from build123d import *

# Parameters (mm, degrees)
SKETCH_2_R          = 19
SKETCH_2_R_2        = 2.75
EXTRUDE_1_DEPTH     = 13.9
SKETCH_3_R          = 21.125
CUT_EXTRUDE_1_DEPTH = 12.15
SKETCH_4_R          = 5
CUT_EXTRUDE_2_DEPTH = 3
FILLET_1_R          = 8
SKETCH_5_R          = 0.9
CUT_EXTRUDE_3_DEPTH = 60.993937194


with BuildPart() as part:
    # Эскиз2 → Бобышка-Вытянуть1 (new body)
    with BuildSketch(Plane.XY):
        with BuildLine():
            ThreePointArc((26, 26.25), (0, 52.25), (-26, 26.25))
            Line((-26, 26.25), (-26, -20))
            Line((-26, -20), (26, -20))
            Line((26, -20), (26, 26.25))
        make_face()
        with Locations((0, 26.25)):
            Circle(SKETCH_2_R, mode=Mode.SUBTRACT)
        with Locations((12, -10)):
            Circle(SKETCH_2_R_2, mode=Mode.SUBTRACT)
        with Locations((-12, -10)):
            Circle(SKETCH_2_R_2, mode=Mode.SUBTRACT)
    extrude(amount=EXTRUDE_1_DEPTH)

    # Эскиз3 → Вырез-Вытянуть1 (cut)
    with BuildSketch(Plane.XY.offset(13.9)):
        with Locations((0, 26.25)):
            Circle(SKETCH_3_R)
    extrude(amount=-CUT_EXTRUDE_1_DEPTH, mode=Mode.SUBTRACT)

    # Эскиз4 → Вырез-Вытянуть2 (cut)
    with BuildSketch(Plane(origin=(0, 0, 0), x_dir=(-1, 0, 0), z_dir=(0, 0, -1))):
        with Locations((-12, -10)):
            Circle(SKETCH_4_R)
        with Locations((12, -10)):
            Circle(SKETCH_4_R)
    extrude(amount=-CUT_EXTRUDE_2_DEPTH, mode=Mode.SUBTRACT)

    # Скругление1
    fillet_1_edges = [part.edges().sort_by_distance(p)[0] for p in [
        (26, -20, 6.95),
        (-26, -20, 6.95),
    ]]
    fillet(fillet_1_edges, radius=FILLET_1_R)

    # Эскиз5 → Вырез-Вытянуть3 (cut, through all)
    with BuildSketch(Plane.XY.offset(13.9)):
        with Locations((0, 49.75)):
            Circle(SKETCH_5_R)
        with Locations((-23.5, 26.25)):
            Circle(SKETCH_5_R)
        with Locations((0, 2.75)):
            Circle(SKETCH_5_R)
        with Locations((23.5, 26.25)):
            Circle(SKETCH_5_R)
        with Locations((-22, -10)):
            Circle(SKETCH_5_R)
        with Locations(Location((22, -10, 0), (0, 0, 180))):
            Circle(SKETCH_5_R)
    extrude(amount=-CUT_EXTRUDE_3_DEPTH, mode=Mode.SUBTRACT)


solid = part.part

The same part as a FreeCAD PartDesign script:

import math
import FreeCAD as App
import Part
import Sketcher
Q = App.Units.Quantity


def edges_at(feature, points):
    """Names of the edges that pass closest to the given points."""
    edges = feature.Shape.Edges
    near = lambda p: min(range(len(edges)), key=lambda i: edges[i].distToShape(Part.Vertex(*p))[0])
    return sorted({f"Edge{near(p) + 1}" for p in points})

doc = App.newDocument("Part")
body = doc.addObject("PartDesign::Body", "Body")

# Sketch on XY plane
sketch1 = doc.addObject("Sketcher::SketchObject", "Sketch")
body.addObject(sketch1)
sketch1.AttachmentSupport = (doc.XY_Plane, [""])
sketch1.MapMode = "FlatFace"
sketch1.addGeometry([
    Part.ArcOfCircle(Part.Circle(App.Vector(0, 26.25, 0), App.Vector(0, 0, 1), 26), math.radians(0), math.radians(180)),  # 0
    Part.LineSegment(App.Vector(-26, 26.25, 0), App.Vector(-26, -20, 0)),  # 1
    Part.LineSegment(App.Vector(-26, -20, 0), App.Vector(26, -20, 0)),  # 2
    Part.LineSegment(App.Vector(26, -20, 0), App.Vector(26, 26.25, 0)),  # 3
    Part.Circle(App.Vector(-12, -10, 0), App.Vector(0, 0, 1), 2.75),  # 4
    Part.Circle(App.Vector(12, -10, 0), App.Vector(0, 0, 1), 2.75),  # 5
    Part.Circle(App.Vector(0, 26.25, 0), App.Vector(0, 0, 1), 19),  # 6
], False)
sketch1.addConstraint([
    Sketcher.Constraint("Tangent", 0, 2, 1, 1),
    Sketcher.Constraint("Coincident", 1, 2, 2, 1),
    Sketcher.Constraint("Coincident", 2, 2, 3, 1),
    Sketcher.Constraint("Tangent", 3, 2, 0, 1),
    Sketcher.Constraint("Vertical", 1),
    Sketcher.Constraint("Horizontal", 2),
    Sketcher.Constraint("Vertical", 3),
    Sketcher.Constraint("Coincident", 6, 3, 0, 3),
    Sketcher.Constraint("Equal", 4, 5),
    Sketcher.Constraint("Symmetric", 4, 3, 5, 3, -2),
    Sketcher.Constraint("PointOnObject", 0, 3, -2),
    Sketcher.Constraint("Diameter", 6, Q("38 mm")),
    Sketcher.Constraint("Radius", 0, Q("26 mm")),
    Sketcher.Constraint("Diameter", 4, Q("5.5 mm")),
    Sketcher.Constraint("DistanceX", 4, 3, -1, 1, Q("12 mm")),
    Sketcher.Constraint("DistanceY", 4, 3, -1, 1, Q("10 mm")),
    Sketcher.Constraint("DistanceY", 1, 2, -1, 1, Q("20 mm")),
    Sketcher.Constraint("DistanceY", 1, 2, 1, 1, Q("46.25 mm")),
])
pad1 = doc.addObject("PartDesign::Pad", "Pad")
body.addObject(pad1)
pad1.Profile = sketch1
pad1.Length = 13.9

# Sketch on XY plane
sketch2 = doc.addObject("Sketcher::SketchObject", "Sketch001")
body.addObject(sketch2)
sketch2.AttachmentSupport = (doc.XY_Plane, [""])
sketch2.MapMode = "FlatFace"
sketch2.AttachmentOffset = App.Placement(App.Vector(0, 0, 13.9), App.Rotation())
sketch2.addGeometry(Part.Circle(App.Vector(0, 26.25, 0), App.Vector(0, 0, 1), 21.125), False)
sketch2.addConstraint([
    Sketcher.Constraint("PointOnObject", 0, 3, -2),
    Sketcher.Constraint("Diameter", 0, Q("42.25 mm")),
    Sketcher.Constraint("DistanceY", -1, 1, 0, 3, Q("26.25 mm")),
])
pocket1 = doc.addObject("PartDesign::Pocket", "Pocket")
body.addObject(pocket1)
pocket1.Profile = sketch2
pocket1.Length = 12.15

# Sketch on XY plane
sketch3 = doc.addObject("Sketcher::SketchObject", "Sketch002")
body.addObject(sketch3)
sketch3.AttachmentSupport = (doc.XY_Plane, [""])
sketch3.MapMode = "FlatFace"
sketch3.addGeometry([
    Part.Circle(App.Vector(12, -10, 0), App.Vector(0, 0, 1), 5),
    Part.Circle(App.Vector(-12, -10, 0), App.Vector(0, 0, 1), 5),
], False)
sketch3.addConstraint([
    Sketcher.Constraint("Equal", 0, 1),
    Sketcher.Constraint("Symmetric", 0, 3, 1, 3, -2),
    Sketcher.Constraint("Diameter", 0, Q("10 mm")),
    Sketcher.Constraint("DistanceX", -1, 1, 0, 3, Q("12 mm")),
    Sketcher.Constraint("DistanceY", 0, 3, -1, 1, Q("10 mm")),
])
pocket2 = doc.addObject("PartDesign::Pocket", "Pocket001")
body.addObject(pocket2)
pocket2.Profile = sketch3
pocket2.Length = 3
pocket2.Reversed = True
doc.recompute()

fillet = doc.addObject("PartDesign::Fillet", "Fillet")
body.addObject(fillet)
fillet.Base = (pocket2, edges_at(pocket2, [(26, -20, 6.95), (-26, -20, 6.95)]))
fillet.Radius = 8

# Sketch on XY plane
sketch4 = doc.addObject("Sketcher::SketchObject", "Sketch003")
body.addObject(sketch4)
sketch4.AttachmentSupport = (doc.XY_Plane, [""])
sketch4.MapMode = "FlatFace"
sketch4.AttachmentOffset = App.Placement(App.Vector(0, 0, 13.9), App.Rotation())
sketch4.addGeometry([
    Part.Circle(App.Vector(0, 49.75, 0), App.Vector(0, 0, 1), 0.9),  # 0
    Part.Circle(App.Vector(-23.5, 26.25, 0), App.Vector(0, 0, 1), 0.9),  # 1
    Part.Circle(App.Vector(0, 2.75, 0), App.Vector(0, 0, 1), 0.9),  # 2
    Part.Circle(App.Vector(23.5, 26.25, 0), App.Vector(0, 0, 1), 0.9),  # 3
    Part.Circle(App.Vector(-22, -10, 0), App.Vector(0, 0, 1), 0.9),  # 4
    Part.Circle(App.Vector(22, -10, 0), App.Vector(0, 0, 1), 0.9),  # 5
], False)
sketch4.addConstraint([
    Sketcher.Constraint("Equal", 0, 1),
    Sketcher.Constraint("Equal", 1, 2),
    Sketcher.Constraint("Equal", 2, 3),
    Sketcher.Constraint("Equal", 3, 4),
    Sketcher.Constraint("Equal", 4, 5),
    Sketcher.Constraint("Symmetric", 1, 3, 3, 3, -2),
    Sketcher.Constraint("Symmetric", 4, 3, 5, 3, -2),
    Sketcher.Constraint("PointOnObject", 0, 3, -2),
    Sketcher.Constraint("PointOnObject", 2, 3, -2),
    Sketcher.Constraint("Diameter", 0, Q("1.8 mm")),
    Sketcher.Constraint("DistanceX", 4, 3, -1, 1, Q("22 mm")),
    Sketcher.Constraint("DistanceY", 4, 3, -1, 1, Q("10 mm")),
    Sketcher.Constraint("DistanceY", 2, 3, 0, 3, Q("47 mm")),
    Sketcher.Constraint("DistanceX", 1, 3, 3, 3, Q("47 mm")),
    Sketcher.Constraint("DistanceY", 1, 3, 0, 3, Q("23.5 mm")),
    Sketcher.Constraint("DistanceY", -1, 1, 0, 3, Q("49.75 mm")),
])
pocket3 = doc.addObject("PartDesign::Pocket", "Pocket002")
body.addObject(pocket3)
pocket3.Profile = sketch4
pocket3.Type = "ThroughAll"

doc.recompute()
